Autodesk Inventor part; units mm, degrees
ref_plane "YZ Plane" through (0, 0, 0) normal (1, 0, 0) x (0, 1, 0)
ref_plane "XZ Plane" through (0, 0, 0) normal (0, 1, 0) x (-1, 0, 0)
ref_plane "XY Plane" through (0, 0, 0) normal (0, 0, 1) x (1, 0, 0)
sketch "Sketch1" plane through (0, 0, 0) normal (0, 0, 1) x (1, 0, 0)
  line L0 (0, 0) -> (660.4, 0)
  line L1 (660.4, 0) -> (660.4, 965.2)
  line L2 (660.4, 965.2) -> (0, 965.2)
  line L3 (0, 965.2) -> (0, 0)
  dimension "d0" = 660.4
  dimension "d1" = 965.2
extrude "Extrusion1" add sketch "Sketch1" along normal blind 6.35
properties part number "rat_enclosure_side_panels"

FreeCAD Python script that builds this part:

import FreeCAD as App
import Part
import Sketcher
from FreeCAD import Vector
Q = App.Units.Quantity


def add_polygon(sketch, points):
    """Adds a closed chain of lines whose ends are joined by coincident constraints."""
    first, n = sketch.GeometryCount, len(points)
    for a, b in zip(points, points[1:] + points[:1]):
        sketch.addGeometry(Part.LineSegment(App.Vector(*a, 0), App.Vector(*b, 0)), False)
    for i in range(n):
        sketch.addConstraint(Sketcher.Constraint("Coincident", first + i, 2, first + (i + 1) % n, 1))

doc = App.newDocument("Part")
body = doc.addObject("PartDesign::Body", "Body")

# Sketch on XY plane
sketch1 = body.newObject("Sketcher::SketchObject", "Sketch")
sketch1.AttachmentSupport = (doc.getObject("XY_Plane"), [""])
sketch1.MapMode = "FlatFace"
add_polygon(sketch1, [(0, 965.2), (0, 0), (660.4, 0), (660.4, 965.2)])  # lines 0-3
sketch1.addConstraint(Sketcher.Constraint("Vertical", 0))
sketch1.addConstraint(Sketcher.Constraint("Horizontal", 1))
sketch1.addConstraint(Sketcher.Constraint("Vertical", 2))
sketch1.addConstraint(Sketcher.Constraint("Horizontal", 3))
sketch1.addConstraint(Sketcher.Constraint("Coincident", 0, 2, -1, 1))
sketch1.addConstraint(Sketcher.Constraint("DistanceX", 1, 1, 1, 2, Q("26 in")))
sketch1.addConstraint(Sketcher.Constraint("DistanceY", 0, 2, 0, 1, Q("38 in")))
pad1 = body.newObject("PartDesign::Pad", "Pad")
pad1.Profile = sketch1
pad1.Length = Q("0.25 in")

doc.recompute()
